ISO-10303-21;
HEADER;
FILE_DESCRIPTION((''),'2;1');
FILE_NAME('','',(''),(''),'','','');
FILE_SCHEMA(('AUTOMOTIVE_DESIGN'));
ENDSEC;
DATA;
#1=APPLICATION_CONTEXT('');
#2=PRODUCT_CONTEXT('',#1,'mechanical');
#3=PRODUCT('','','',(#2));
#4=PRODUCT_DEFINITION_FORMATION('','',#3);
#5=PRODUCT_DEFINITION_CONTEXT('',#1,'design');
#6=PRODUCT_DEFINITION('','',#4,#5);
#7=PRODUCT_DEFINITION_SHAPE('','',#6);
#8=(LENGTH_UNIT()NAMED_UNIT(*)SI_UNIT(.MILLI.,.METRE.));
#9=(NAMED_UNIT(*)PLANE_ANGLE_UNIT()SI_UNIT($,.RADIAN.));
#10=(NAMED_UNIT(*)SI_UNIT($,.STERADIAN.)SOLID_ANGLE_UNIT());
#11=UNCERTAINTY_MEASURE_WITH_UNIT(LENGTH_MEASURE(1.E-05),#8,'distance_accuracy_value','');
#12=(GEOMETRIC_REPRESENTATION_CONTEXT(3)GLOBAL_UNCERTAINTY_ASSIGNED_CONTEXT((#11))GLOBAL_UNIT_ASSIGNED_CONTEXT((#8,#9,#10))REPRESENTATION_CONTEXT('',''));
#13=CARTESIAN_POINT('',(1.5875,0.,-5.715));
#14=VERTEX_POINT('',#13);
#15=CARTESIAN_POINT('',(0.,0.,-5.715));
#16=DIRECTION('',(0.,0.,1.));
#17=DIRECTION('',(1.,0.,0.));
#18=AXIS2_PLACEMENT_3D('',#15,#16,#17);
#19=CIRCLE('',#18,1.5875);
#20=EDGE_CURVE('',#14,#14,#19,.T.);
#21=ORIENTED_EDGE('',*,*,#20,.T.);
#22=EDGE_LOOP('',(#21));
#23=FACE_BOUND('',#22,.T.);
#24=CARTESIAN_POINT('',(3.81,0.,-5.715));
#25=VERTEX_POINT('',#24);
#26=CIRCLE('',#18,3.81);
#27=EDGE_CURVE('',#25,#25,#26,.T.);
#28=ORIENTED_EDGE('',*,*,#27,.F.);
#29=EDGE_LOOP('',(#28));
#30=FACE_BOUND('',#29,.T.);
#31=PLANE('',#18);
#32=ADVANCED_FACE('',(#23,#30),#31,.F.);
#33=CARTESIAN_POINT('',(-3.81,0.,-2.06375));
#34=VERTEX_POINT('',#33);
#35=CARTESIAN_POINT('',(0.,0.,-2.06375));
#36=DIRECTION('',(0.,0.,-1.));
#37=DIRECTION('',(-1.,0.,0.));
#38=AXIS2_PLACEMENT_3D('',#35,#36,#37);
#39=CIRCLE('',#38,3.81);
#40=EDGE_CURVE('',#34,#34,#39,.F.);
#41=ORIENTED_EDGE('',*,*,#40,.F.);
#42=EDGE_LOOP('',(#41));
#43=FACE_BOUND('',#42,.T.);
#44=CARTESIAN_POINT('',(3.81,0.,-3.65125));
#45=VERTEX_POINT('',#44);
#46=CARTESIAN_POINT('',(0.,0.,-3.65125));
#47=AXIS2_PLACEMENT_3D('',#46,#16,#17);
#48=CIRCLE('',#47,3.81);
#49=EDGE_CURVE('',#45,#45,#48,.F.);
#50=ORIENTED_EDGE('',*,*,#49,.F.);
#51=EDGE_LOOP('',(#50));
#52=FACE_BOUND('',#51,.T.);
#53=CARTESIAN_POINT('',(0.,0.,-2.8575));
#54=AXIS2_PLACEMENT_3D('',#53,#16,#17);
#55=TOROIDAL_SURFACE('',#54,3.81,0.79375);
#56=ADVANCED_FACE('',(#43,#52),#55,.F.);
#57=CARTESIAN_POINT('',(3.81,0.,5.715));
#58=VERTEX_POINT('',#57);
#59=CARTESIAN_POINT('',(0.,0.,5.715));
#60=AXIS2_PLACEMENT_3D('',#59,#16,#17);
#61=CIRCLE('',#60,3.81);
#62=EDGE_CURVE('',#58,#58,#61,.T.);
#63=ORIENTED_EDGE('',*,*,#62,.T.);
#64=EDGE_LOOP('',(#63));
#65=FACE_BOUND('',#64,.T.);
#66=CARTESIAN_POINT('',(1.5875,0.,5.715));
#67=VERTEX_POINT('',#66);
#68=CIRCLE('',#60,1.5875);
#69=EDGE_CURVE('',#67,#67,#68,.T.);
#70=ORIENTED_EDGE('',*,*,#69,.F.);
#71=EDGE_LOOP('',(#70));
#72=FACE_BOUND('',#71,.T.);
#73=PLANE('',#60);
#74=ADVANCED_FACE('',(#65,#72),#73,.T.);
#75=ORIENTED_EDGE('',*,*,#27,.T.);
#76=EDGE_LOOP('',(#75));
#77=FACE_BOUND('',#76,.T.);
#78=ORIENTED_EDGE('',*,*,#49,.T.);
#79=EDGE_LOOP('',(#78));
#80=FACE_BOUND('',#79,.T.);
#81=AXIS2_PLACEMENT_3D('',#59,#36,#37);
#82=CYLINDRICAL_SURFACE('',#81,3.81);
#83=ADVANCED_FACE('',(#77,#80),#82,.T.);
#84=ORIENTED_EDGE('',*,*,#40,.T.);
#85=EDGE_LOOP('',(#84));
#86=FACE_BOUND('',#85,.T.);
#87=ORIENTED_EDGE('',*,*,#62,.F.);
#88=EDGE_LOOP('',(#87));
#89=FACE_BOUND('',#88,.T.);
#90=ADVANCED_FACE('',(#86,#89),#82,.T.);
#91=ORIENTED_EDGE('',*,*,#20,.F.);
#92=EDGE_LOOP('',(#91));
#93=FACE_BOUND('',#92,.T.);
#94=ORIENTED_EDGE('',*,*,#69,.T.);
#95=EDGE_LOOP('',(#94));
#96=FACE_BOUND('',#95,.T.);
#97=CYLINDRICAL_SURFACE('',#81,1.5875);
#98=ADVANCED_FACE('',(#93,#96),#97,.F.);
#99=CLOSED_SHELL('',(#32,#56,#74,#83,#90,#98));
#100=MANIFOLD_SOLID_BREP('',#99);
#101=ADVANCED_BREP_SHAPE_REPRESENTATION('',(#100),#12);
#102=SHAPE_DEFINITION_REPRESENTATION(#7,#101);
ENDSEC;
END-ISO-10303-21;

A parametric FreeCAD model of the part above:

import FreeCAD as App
import Part
import Sketcher
Q = App.Units.Quantity

doc = App.newDocument("Part")
params = doc.addObject("Spreadsheet::Sheet", "Params")
for row, (alias, value) in enumerate([
    ("sketch1_diameter", "0.3 in"),
    ("sketch1_diameter2", "0.125 in"),
    ("pad1_length", "0.45 in"),
    ("sketch2_diameter", "0.0625 in"),
    ("groove_angle", "360 deg"),
], start=1):
    params.set(f"A{row}", alias)
    params.set(f"B{row}", "=" + value)
    params.setAlias(f"B{row}", alias)

body = doc.addObject("PartDesign::Body", "Body")

# Sketch on XY plane
sketch1 = body.newObject("Sketcher::SketchObject", "Sketch")
sketch1.AttachmentSupport = (doc.getObject("XY_Plane"), [""])
sketch1.MapMode = "FlatFace"
sketch1.addGeometry([
    Part.Circle(App.Vector(0, 0, 0), App.Vector(0, 0, 1), 3.8),
    Part.Circle(App.Vector(0, 0, 0), App.Vector(0, 0, 1), 1.6),
], False)
sketch1.addConstraint([
    Sketcher.Constraint("Coincident", 0, 3, -1, 1),
    Sketcher.Constraint("Coincident", 1, 3, -1, 1),
    Sketcher.Constraint("Diameter", 0, Q("0.3 in")),
    Sketcher.Constraint("Diameter", 1, Q("0.125 in")),
])
sketch1.setExpression("Constraints[2]", "Params.sketch1_diameter")
sketch1.setExpression("Constraints[3]", "Params.sketch1_diameter2")
pad1 = body.newObject("PartDesign::Pad", "Pad")
pad1.Profile = sketch1
pad1.setExpression("Length", "Params.pad1_length")
pad1.Midplane = True

# Sketch on XZ plane
sketch2 = body.newObject("Sketcher::SketchObject", "Sketch001")
sketch2.AttachmentSupport = (doc.getObject("XZ_Plane"), [""])
sketch2.MapMode = "FlatFace"
sketch2.addGeometry(Part.Circle(App.Vector(3.8, -2.9, 0), App.Vector(0, 0, 1), 0.8), False)
sketch2.addConstraint([
    Sketcher.Constraint("Diameter", 0, Q("0.0625 in")),
    Sketcher.Constraint("DistanceX", -1, 1, 0, 3, Q("0.15 in")),
    Sketcher.Constraint("DistanceY", 0, 3, -1, 1, Q("0.1125 in")),
])
sketch2.setExpression("Constraints[0]", "Params.sketch2_diameter")
groove = body.newObject("PartDesign::Groove", "Groove")
groove.Profile = sketch2
groove.ReferenceAxis = (sketch2, ["V_Axis"])
groove.setExpression("Angle", "Params.groove_angle")

doc.recompute()
